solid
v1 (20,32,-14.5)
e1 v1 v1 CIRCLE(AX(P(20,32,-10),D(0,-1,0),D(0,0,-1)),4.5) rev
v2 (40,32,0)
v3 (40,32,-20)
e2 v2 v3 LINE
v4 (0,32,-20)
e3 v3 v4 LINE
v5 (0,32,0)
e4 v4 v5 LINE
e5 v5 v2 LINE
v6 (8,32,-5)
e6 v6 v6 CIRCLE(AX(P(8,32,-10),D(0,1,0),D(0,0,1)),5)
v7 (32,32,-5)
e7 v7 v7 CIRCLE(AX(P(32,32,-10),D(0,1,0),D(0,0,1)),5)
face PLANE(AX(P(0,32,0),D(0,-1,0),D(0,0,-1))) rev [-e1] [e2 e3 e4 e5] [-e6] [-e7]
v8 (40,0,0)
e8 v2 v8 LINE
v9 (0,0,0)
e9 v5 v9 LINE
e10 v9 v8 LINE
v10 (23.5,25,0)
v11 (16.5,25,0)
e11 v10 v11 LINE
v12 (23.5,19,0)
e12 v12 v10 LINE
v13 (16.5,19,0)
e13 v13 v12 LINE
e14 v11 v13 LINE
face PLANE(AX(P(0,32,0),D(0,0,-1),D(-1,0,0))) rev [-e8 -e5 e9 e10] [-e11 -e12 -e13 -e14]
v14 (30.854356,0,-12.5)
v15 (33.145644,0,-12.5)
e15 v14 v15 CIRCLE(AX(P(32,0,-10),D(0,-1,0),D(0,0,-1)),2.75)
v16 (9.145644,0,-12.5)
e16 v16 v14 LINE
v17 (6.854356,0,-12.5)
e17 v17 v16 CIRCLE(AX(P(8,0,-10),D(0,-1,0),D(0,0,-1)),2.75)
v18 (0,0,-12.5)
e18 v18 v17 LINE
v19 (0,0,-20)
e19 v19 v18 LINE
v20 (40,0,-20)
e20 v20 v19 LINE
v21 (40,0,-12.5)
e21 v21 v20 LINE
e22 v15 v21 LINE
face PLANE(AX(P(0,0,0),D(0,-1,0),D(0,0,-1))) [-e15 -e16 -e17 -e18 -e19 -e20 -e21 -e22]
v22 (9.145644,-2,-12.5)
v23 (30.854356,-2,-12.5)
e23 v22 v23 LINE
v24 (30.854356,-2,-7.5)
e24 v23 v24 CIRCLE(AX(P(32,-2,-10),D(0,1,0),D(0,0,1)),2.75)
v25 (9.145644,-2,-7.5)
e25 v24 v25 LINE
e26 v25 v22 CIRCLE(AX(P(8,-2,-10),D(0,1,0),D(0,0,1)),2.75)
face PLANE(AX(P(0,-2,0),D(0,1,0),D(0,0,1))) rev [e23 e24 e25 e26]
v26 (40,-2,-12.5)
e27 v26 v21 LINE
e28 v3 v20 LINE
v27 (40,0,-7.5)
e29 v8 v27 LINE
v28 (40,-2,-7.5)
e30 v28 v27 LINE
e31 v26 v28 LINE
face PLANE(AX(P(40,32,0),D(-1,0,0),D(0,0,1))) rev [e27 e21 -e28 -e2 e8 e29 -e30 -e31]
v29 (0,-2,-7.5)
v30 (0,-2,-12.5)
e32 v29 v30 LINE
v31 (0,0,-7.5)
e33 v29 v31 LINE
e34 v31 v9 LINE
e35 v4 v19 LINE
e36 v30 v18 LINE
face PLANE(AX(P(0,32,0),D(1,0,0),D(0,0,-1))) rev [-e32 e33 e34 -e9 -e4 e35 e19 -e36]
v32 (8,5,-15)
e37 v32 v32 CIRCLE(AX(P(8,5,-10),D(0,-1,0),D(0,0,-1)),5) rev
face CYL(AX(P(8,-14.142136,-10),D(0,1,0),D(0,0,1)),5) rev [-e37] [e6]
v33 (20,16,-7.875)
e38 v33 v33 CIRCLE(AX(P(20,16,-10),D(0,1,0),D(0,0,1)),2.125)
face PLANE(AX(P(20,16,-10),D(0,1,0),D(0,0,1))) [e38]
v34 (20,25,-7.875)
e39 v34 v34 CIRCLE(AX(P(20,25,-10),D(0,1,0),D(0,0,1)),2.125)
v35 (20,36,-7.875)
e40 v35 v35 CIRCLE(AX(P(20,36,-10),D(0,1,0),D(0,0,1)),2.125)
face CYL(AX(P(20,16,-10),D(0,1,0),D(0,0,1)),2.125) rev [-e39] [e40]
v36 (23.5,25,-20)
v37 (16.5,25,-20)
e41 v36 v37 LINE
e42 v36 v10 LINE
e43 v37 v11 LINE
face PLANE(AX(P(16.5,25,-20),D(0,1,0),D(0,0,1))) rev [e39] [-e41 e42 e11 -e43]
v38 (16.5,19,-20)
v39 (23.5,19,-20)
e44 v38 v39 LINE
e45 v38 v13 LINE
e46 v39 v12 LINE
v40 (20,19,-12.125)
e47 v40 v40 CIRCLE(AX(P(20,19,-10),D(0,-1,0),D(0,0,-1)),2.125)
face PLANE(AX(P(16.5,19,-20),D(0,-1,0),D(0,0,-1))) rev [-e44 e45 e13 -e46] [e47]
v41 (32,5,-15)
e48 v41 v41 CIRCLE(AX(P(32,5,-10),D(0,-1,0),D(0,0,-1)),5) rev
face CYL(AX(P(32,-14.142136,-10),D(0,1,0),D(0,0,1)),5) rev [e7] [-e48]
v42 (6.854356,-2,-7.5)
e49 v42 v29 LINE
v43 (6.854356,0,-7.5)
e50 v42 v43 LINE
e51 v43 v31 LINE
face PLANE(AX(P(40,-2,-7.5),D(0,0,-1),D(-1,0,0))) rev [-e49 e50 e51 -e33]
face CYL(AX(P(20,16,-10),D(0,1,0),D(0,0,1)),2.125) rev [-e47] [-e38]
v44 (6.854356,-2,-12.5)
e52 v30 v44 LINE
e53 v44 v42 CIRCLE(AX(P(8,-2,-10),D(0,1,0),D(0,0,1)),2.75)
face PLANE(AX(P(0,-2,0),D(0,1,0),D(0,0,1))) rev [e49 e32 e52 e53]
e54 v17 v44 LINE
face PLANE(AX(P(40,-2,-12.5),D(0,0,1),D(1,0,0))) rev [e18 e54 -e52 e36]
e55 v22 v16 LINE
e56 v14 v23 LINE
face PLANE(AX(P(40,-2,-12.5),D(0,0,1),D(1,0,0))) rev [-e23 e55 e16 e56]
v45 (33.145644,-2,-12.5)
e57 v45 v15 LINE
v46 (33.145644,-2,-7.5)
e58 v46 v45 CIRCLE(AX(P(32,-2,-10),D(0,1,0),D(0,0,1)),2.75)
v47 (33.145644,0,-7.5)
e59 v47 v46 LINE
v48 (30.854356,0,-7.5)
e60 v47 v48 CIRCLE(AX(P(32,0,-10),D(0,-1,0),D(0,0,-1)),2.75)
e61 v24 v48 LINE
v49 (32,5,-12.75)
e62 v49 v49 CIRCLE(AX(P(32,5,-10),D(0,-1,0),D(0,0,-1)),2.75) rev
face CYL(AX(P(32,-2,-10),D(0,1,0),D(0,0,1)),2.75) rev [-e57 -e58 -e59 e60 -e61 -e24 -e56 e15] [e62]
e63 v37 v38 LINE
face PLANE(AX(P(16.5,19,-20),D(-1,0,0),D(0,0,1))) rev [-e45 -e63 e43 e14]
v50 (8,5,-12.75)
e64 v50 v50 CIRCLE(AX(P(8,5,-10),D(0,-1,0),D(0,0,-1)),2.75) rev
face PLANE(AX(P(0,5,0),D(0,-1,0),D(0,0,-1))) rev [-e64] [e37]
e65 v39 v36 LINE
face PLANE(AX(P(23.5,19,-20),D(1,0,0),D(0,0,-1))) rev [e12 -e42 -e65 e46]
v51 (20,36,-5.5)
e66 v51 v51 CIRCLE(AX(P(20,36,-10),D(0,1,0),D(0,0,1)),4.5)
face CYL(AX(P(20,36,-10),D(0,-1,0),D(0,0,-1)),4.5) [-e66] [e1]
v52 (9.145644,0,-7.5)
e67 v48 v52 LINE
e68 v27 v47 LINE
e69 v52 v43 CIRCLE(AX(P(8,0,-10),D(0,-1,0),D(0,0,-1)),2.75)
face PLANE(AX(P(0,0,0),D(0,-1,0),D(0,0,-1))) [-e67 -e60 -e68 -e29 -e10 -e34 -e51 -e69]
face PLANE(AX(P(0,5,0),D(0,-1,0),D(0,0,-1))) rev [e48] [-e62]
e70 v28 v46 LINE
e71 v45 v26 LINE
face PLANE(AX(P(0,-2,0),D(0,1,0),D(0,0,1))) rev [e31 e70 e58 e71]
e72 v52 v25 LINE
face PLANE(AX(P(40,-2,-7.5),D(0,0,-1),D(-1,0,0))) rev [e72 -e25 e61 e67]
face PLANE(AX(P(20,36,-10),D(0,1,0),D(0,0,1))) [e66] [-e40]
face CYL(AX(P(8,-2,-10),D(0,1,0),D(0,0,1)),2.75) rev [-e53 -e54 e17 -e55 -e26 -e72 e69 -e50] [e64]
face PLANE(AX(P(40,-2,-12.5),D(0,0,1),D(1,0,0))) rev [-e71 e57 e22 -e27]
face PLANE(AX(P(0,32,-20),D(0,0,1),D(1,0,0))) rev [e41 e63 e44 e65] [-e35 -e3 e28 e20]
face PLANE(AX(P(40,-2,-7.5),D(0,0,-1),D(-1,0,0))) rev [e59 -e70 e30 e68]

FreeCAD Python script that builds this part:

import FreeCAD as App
import Part
import Sketcher

V = App.Vector

doc = App.newDocument("Part")
params = doc.addObject("Spreadsheet::Sheet", "Params")
for row, (alias, value) in enumerate([
    ("sketch1_width", "40 mm"),
    ("sketch1_height", "20 mm"),
    ("pad1_length", "32 mm"),
    ("sketch2_width", "40 mm"),
    ("sketch2_height", "5 mm"),
    ("pad2_length", "2 mm"),
    ("sketch3_diameter", "5.5 mm"),
    ("sketch4_diameter", "10 mm"),
    ("pocket2_length", "27 mm"),
    ("sketch5_width", "7 mm"),
    ("sketch5_height", "6 mm"),
    ("sketch6_diameter", "9 mm"),
    ("pad3_length", "4 mm"),
    ("sketch7_diameter", "4.25 mm"),
    ("pocket4_length", "20 mm"),
], start=1):
    params.set(f"A{row}", alias)
    params.set(f"B{row}", "=" + value)
    params.setAlias(f"B{row}", alias)

body = doc.addObject("PartDesign::Body", "Body")

sketch1 = body.newObject("Sketcher::SketchObject", "Sketch")
sketch1.AttachmentSupport = (doc.getObject("XZ_Plane"), [""])
sketch1.MapMode = "FlatFace"
sketch1.addGeometry([
    Part.LineSegment(V(0, -20, 0), V(0, 0, 0)),
    Part.LineSegment(V(0, 0, 0), V(40, 0, 0)),
    Part.LineSegment(V(40, 0, 0), V(40, -20, 0)),
    Part.LineSegment(V(40, -20, 0), V(0, -20, 0)),
], False)
sketch1.addConstraint([
    Sketcher.Constraint("Coincident", 0, 2, 1, 1),
    Sketcher.Constraint("Coincident", 1, 2, 2, 1),
    Sketcher.Constraint("Coincident", 2, 2, 3, 1),
    Sketcher.Constraint("Coincident", 3, 2, 0, 1),
    Sketcher.Constraint("Vertical", 0),
    Sketcher.Constraint("Horizontal", 1),
    Sketcher.Constraint("Vertical", 2),
    Sketcher.Constraint("Horizontal", 3),
    Sketcher.Constraint("Coincident", 0, 2, -1, 1),
    Sketcher.Constraint("DistanceX", 1, 1, 1, 2, 40.0),
    Sketcher.Constraint("DistanceY", 0, 1, 0, 2, 20.0),
])
sketch1.setExpression("Constraints[9]", "Params.sketch1_width")
sketch1.setExpression("Constraints[10]", "Params.sketch1_height")
pad1 = body.newObject("PartDesign::Pad", "Pad")
pad1.Profile = sketch1
pad1.setExpression("Length", "Params.pad1_length")
pad1.Reversed = True

sketch2 = body.newObject("Sketcher::SketchObject", "Sketch001")
sketch2.AttachmentSupport = (doc.getObject("XZ_Plane"), [""])
sketch2.MapMode = "FlatFace"
sketch2.addGeometry([
    Part.LineSegment(V(0, -7.5, 0), V(0, -12.5, 0)),
    Part.LineSegment(V(0, -12.5, 0), V(40, -12.5, 0)),
    Part.LineSegment(V(40, -12.5, 0), V(40, -7.5, 0)),
    Part.LineSegment(V(40, -7.5, 0), V(0, -7.5, 0)),
], False)
sketch2.addConstraint([
    Sketcher.Constraint("Coincident", 0, 2, 1, 1),
    Sketcher.Constraint("Coincident", 1, 2, 2, 1),
    Sketcher.Constraint("Coincident", 2, 2, 3, 1),
    Sketcher.Constraint("Coincident", 3, 2, 0, 1),
    Sketcher.Constraint("Vertical", 0),
    Sketcher.Constraint("Horizontal", 1),
    Sketcher.Constraint("Vertical", 2),
    Sketcher.Constraint("Horizontal", 3),
    Sketcher.Constraint("PointOnObject", 0, 2, -2),
    Sketcher.Constraint("DistanceX", 1, 1, 1, 2, 40.0),
    Sketcher.Constraint("DistanceY", 0, 2, 0, 1, 5.0),
    Sketcher.Constraint("DistanceY", 0, 2, -1, 1, 12.5),
])
sketch2.setExpression("Constraints[9]", "Params.sketch2_width")
sketch2.setExpression("Constraints[10]", "Params.sketch2_height")
pad2 = body.newObject("PartDesign::Pad", "Pad001")
pad2.Profile = sketch2
pad2.setExpression("Length", "Params.pad2_length")

sketch3 = body.newObject("Sketcher::SketchObject", "Sketch002")
sketch3.AttachmentSupport = (doc.getObject("XZ_Plane"), [""])
sketch3.MapMode = "FlatFace"
sketch3.AttachmentOffset = App.Placement(V(0, 0, -32), App.Rotation())
sketch3.addGeometry([
    Part.Circle(V(32, -10, 0), V(0, 0, 1), 2.75),
    Part.Circle(V(8, -10, 0), V(0, 0, 1), 2.75),
], False)
sketch3.addConstraint([
    Sketcher.Constraint("Equal", 0, 1),
    Sketcher.Constraint("Horizontal", 0, 3, 1, 3),
    Sketcher.Constraint("Diameter", 0, 5.5),
    Sketcher.Constraint("DistanceX", -1, 1, 0, 3, 32.0),
    Sketcher.Constraint("DistanceY", 0, 3, -1, 1, 10.0),
    Sketcher.Constraint("DistanceX", -1, 1, 1, 3, 8.0),
])
sketch3.setExpression("Constraints[2]", "Params.sketch3_diameter")
pocket1 = body.newObject("PartDesign::Pocket", "Pocket")
pocket1.Profile = sketch3
pocket1.Type = "ThroughAll"
pocket1.Reversed = True

sketch4 = body.newObject("Sketcher::SketchObject", "Sketch003")
sketch4.AttachmentSupport = (doc.getObject("XZ_Plane"), [""])
sketch4.MapMode = "FlatFace"
sketch4.AttachmentOffset = App.Placement(V(0, 0, -32), App.Rotation())
sketch4.addGeometry([
    Part.Circle(V(8, -10, 0), V(0, 0, 1), 5),
    Part.Circle(V(32, -10, 0), V(0, 0, 1), 5),
], False)
sketch4.addConstraint([
    Sketcher.Constraint("Equal", 0, 1),
    Sketcher.Constraint("Horizontal", 0, 3, 1, 3),
    Sketcher.Constraint("Diameter", 0, 10.0),
    Sketcher.Constraint("DistanceX", -1, 1, 0, 3, 8.0),
    Sketcher.Constraint("DistanceY", 0, 3, -1, 1, 10.0),
    Sketcher.Constraint("DistanceX", -1, 1, 1, 3, 32.0),
])
sketch4.setExpression("Constraints[2]", "Params.sketch4_diameter")
pocket2 = body.newObject("PartDesign::Pocket", "Pocket001")
pocket2.Profile = sketch4
pocket2.setExpression("Length", "Params.pocket2_length")
pocket2.Reversed = True

sketch5 = body.newObject("Sketcher::SketchObject", "Sketch004")
sketch5.AttachmentSupport = (doc.getObject("XY_Plane"), [""])
sketch5.MapMode = "FlatFace"
sketch5.addGeometry([
    Part.LineSegment(V(16.5, 25, 0), V(16.5, 19, 0)),
    Part.LineSegment(V(16.5, 19, 0), V(23.5, 19, 0)),
    Part.LineSegment(V(23.5, 19, 0), V(23.5, 25, 0)),
    Part.LineSegment(V(23.5, 25, 0), V(16.5, 25, 0)),
], False)
sketch5.addConstraint([
    Sketcher.Constraint("Coincident", 0, 2, 1, 1),
    Sketcher.Constraint("Coincident", 1, 2, 2, 1),
    Sketcher.Constraint("Coincident", 2, 2, 3, 1),
    Sketcher.Constraint("Coincident", 3, 2, 0, 1),
    Sketcher.Constraint("Vertical", 0),
    Sketcher.Constraint("Horizontal", 1),
    Sketcher.Constraint("Vertical", 2),
    Sketcher.Constraint("Horizontal", 3),
    Sketcher.Constraint("DistanceX", 1, 1, 1, 2, 7.0),
    Sketcher.Constraint("DistanceY", 0, 2, 0, 1, 6.0),
    Sketcher.Constraint("DistanceY", -1, 1, 0, 2, 19.0),
    Sketcher.Constraint("DistanceX", -1, 1, 0, 2, 16.5),
])
sketch5.setExpression("Constraints[8]", "Params.sketch5_width")
sketch5.setExpression("Constraints[9]", "Params.sketch5_height")
pocket3 = body.newObject("PartDesign::Pocket", "Pocket002")
pocket3.Profile = sketch5
pocket3.Type = "ThroughAll"

sketch6 = body.newObject("Sketcher::SketchObject", "Sketch005")
sketch6.AttachmentSupport = (doc.getObject("XZ_Plane"), [""])
sketch6.MapMode = "FlatFace"
sketch6.AttachmentOffset = App.Placement(V(0, 0, -32), App.Rotation())
sketch6.addGeometry(Part.Circle(V(20, -10, 0), V(0, 0, 1), 4.5), False)
sketch6.addConstraint([
    Sketcher.Constraint("Diameter", 0, 9.0),
    Sketcher.Constraint("DistanceX", -1, 1, 0, 3, 20.0),
    Sketcher.Constraint("DistanceY", 0, 3, -1, 1, 10.0),
])
sketch6.setExpression("Constraints[0]", "Params.sketch6_diameter")
pad3 = body.newObject("PartDesign::Pad", "Pad002")
pad3.Profile = sketch6
pad3.setExpression("Length", "Params.pad3_length")
pad3.Reversed = True

sketch7 = body.newObject("Sketcher::SketchObject", "Sketch006")
sketch7.AttachmentSupport = (doc.getObject("XZ_Plane"), [""])
sketch7.MapMode = "FlatFace"
sketch7.AttachmentOffset = App.Placement(V(0, 0, -36), App.Rotation())
sketch7.addGeometry(Part.Circle(V(20, -10, 0), V(0, 0, 1), 2.125), False)
sketch7.addConstraint([
    Sketcher.Constraint("Diameter", 0, 4.25),
    Sketcher.Constraint("DistanceX", -1, 1, 0, 3, 20.0),
    Sketcher.Constraint("DistanceY", 0, 3, -1, 1, 10.0),
])
sketch7.setExpression("Constraints[0]", "Params.sketch7_diameter")
pocket4 = body.newObject("PartDesign::Pocket", "Pocket003")
pocket4.Profile = sketch7
pocket4.setExpression("Length", "Params.pocket4_length")
pocket4.Reversed = True

doc.recompute()
